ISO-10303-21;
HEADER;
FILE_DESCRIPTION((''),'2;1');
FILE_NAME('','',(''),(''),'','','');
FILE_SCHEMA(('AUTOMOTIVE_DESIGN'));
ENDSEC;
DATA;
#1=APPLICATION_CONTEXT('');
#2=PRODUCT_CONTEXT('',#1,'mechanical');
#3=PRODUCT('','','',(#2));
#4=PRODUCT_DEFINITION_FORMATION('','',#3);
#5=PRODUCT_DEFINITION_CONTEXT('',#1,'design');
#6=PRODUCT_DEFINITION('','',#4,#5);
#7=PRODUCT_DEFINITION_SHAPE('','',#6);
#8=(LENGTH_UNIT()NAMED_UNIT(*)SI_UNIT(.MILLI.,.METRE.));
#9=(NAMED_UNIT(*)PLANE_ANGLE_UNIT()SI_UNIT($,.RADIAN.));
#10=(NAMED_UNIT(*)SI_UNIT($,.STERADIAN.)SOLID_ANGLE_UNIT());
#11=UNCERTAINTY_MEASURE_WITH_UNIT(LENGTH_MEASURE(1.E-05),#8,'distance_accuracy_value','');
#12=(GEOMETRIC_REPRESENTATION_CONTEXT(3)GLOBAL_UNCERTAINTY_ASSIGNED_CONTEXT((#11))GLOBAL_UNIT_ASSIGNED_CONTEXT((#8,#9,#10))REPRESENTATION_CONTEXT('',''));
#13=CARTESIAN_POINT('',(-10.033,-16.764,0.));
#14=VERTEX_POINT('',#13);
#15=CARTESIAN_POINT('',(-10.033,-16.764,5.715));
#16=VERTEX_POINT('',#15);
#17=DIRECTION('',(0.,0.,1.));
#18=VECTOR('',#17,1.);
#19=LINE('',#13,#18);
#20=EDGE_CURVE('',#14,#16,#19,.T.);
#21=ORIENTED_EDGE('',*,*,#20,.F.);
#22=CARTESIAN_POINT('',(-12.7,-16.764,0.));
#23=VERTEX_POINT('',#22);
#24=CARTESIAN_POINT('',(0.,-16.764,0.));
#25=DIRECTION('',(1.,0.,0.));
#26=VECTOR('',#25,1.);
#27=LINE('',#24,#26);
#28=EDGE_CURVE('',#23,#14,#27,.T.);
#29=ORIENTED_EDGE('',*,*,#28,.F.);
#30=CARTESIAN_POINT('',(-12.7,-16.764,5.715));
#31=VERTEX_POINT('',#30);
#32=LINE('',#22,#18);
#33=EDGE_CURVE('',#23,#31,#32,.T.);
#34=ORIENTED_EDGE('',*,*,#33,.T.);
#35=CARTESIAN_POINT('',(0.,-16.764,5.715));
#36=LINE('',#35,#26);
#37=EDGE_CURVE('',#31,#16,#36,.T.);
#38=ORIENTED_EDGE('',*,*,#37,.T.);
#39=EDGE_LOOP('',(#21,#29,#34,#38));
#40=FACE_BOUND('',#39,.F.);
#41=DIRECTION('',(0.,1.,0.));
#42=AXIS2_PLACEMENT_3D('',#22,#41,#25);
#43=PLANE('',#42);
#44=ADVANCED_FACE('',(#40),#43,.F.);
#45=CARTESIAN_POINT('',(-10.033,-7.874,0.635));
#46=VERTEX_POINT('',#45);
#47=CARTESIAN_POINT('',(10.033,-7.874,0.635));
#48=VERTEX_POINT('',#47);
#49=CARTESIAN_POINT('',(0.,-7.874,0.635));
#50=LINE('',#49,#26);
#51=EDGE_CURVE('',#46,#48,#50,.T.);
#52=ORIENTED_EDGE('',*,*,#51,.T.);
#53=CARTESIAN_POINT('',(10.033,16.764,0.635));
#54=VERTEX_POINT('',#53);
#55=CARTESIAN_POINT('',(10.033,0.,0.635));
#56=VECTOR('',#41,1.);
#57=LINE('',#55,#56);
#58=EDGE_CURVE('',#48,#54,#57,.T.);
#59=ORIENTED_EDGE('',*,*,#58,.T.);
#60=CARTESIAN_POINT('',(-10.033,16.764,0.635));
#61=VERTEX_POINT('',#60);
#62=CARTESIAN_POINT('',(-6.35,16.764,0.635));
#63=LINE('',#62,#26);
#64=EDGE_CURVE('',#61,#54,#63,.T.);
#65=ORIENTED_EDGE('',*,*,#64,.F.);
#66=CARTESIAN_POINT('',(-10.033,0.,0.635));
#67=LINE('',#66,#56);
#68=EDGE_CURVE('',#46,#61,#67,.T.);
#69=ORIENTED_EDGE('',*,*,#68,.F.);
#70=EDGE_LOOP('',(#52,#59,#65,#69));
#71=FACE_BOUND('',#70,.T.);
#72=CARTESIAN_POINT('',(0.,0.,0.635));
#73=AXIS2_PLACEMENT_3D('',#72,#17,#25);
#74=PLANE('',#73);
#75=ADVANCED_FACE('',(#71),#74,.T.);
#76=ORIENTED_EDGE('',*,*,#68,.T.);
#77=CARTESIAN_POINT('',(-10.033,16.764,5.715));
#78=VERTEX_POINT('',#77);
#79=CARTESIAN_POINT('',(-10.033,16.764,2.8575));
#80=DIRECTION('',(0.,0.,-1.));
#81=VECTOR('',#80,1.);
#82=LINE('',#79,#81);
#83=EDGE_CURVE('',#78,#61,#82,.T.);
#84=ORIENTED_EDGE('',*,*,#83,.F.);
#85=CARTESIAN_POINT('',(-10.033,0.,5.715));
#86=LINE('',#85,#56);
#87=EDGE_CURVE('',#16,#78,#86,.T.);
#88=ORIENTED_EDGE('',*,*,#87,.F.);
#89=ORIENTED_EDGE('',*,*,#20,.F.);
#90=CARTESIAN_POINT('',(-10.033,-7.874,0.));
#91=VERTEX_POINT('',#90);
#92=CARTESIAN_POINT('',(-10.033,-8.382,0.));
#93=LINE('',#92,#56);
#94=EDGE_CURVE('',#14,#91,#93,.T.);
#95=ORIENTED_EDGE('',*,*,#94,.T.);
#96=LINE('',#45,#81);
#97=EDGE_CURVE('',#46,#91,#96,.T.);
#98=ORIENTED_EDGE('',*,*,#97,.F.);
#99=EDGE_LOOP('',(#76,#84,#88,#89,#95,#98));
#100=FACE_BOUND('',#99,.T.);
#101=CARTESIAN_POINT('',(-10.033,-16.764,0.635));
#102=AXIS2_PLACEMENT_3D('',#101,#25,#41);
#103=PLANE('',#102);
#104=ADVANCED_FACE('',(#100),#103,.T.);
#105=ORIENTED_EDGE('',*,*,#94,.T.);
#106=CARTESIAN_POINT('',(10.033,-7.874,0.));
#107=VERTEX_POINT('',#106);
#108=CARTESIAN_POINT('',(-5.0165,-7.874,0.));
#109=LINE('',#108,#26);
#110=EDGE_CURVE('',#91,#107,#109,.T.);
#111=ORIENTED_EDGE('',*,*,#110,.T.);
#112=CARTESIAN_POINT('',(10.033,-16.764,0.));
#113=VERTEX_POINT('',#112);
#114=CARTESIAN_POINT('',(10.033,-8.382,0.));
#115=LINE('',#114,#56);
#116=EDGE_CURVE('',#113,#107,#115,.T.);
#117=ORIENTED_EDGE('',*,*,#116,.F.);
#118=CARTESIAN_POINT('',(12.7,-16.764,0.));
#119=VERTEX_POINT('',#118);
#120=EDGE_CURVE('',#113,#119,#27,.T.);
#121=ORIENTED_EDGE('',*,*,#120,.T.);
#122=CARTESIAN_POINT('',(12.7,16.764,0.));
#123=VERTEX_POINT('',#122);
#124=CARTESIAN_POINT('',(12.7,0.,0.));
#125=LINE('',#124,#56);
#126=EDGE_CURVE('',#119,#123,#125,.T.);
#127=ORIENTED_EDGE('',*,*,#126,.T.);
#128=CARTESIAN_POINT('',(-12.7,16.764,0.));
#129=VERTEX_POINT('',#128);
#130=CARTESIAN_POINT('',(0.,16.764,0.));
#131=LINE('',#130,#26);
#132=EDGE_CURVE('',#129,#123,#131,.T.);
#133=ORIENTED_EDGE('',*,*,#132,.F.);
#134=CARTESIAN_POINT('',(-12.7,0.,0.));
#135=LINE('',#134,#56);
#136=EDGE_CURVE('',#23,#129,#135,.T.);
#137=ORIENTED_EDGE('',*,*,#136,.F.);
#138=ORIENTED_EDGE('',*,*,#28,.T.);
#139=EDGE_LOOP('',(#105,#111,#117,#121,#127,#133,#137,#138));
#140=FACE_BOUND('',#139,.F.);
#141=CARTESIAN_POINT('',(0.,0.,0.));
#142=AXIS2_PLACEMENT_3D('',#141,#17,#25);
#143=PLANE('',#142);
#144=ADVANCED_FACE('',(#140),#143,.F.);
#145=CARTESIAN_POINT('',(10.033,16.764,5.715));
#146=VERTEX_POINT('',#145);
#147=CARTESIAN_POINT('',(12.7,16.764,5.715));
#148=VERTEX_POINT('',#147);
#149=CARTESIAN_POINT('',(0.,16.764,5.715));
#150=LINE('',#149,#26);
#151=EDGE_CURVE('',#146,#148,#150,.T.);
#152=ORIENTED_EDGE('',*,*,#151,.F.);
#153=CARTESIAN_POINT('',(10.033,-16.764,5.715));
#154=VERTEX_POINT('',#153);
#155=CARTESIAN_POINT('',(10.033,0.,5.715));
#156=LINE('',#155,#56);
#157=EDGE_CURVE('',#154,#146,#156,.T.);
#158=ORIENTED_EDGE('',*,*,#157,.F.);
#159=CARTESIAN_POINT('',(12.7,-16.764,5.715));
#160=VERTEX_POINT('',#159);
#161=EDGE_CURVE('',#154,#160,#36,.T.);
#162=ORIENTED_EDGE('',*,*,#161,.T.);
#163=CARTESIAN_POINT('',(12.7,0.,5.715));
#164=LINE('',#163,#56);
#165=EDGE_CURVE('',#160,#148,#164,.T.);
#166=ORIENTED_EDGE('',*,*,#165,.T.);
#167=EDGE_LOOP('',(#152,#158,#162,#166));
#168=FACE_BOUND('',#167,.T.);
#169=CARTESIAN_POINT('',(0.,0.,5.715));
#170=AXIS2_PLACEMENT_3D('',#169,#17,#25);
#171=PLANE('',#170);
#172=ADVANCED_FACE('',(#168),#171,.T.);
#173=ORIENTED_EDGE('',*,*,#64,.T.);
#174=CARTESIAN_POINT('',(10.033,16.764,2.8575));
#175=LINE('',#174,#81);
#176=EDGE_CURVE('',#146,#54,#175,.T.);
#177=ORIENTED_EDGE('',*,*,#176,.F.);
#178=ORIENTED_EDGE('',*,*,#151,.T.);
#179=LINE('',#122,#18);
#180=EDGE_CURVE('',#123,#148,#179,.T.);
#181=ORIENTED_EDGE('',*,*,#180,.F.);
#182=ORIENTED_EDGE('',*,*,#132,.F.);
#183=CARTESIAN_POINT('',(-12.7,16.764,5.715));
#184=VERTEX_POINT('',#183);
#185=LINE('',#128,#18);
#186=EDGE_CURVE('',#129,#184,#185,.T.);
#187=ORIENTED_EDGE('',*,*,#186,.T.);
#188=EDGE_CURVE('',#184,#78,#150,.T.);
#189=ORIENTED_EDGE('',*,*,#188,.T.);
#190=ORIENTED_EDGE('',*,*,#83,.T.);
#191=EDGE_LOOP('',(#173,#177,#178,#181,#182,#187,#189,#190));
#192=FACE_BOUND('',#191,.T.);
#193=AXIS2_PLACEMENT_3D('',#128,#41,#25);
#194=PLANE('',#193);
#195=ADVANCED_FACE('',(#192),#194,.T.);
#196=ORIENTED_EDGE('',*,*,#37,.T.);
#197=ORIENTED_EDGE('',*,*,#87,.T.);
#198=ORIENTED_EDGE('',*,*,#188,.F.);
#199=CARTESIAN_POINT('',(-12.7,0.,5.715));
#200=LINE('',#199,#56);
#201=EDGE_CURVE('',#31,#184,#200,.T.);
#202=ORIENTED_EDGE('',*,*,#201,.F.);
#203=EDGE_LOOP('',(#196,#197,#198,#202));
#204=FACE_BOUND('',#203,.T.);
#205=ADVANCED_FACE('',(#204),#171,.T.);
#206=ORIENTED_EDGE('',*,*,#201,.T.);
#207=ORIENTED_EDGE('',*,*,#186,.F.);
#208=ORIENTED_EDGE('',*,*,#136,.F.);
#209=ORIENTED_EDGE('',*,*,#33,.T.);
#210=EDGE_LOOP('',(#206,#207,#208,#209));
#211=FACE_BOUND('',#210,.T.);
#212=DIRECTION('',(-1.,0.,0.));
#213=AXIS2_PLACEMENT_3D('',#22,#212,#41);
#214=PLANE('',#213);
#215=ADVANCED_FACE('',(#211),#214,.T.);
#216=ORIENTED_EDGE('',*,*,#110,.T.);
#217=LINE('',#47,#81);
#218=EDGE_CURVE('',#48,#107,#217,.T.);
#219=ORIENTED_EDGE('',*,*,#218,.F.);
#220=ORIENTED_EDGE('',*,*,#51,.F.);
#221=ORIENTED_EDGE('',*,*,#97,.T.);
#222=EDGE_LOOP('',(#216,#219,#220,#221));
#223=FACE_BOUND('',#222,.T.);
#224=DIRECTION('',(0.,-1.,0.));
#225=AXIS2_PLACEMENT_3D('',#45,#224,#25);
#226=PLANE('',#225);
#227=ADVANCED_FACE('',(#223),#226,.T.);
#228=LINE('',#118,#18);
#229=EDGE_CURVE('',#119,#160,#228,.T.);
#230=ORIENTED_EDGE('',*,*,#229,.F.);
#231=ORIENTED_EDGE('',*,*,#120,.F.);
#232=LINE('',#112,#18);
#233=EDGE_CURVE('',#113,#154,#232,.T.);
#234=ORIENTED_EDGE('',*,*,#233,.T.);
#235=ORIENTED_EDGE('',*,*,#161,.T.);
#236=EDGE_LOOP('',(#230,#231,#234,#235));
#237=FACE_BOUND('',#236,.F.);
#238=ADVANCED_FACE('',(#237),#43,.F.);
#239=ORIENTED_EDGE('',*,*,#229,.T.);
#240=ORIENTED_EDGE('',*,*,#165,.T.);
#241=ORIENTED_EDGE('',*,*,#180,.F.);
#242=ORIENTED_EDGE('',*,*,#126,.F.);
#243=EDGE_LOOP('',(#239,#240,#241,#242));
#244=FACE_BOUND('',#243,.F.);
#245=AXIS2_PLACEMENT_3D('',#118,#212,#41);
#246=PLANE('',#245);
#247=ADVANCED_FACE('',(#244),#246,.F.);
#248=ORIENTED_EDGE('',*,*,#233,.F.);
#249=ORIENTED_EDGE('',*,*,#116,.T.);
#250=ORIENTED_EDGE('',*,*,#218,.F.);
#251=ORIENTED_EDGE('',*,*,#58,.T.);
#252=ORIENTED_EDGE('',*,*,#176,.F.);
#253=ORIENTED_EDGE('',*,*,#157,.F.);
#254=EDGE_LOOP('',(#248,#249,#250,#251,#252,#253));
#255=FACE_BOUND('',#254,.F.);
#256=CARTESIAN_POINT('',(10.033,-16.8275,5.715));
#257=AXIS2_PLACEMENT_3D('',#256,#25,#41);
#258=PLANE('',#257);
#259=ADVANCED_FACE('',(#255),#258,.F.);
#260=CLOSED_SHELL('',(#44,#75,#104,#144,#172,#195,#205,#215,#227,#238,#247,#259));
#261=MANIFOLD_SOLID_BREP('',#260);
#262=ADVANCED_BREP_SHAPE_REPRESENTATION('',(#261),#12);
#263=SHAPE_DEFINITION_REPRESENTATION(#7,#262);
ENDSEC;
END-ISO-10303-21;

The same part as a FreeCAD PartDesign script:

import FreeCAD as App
import Part
import Sketcher
Q = App.Units.Quantity

doc = App.newDocument("Part")
body = doc.addObject("PartDesign::Body", "Body")

# Sketch on XY plane
sketch1 = body.newObject("Sketcher::SketchObject", "Sketch")
sketch1.AttachmentSupport = (doc.getObject("XY_Plane"), [""])
sketch1.MapMode = "FlatFace"
sketch1.addGeometry(Part.LineSegment(App.Vector(-13, 17, 0), App.Vector(-13, -17, 0)), False)
sketch1.addGeometry(Part.LineSegment(App.Vector(-13, -17, 0), App.Vector(13, -17, 0)), False)
sketch1.addGeometry(Part.LineSegment(App.Vector(13, -17, 0), App.Vector(13, 17, 0)), False)
sketch1.addGeometry(Part.LineSegment(App.Vector(13, 17, 0), App.Vector(-13, 17, 0)), False)
sketch1.addConstraint(Sketcher.Constraint("Coincident", 0, 2, 1, 1))
sketch1.addConstraint(Sketcher.Constraint("Coincident", 1, 2, 2, 1))
sketch1.addConstraint(Sketcher.Constraint("Coincident", 2, 2, 3, 1))
sketch1.addConstraint(Sketcher.Constraint("Coincident", 3, 2, 0, 1))
sketch1.addConstraint(Sketcher.Constraint("Vertical", 0))
sketch1.addConstraint(Sketcher.Constraint("Horizontal", 1))
sketch1.addConstraint(Sketcher.Constraint("Vertical", 2))
sketch1.addConstraint(Sketcher.Constraint("Horizontal", 3))
sketch1.addConstraint(Sketcher.Constraint("Symmetric", 0, 2, 2, 2, -1, 1))
sketch1.addConstraint(Sketcher.Constraint("DistanceX", 1, 1, 1, 2, Q("1 in")))
sketch1.addConstraint(Sketcher.Constraint("DistanceY", 0, 2, 0, 1, Q("1.32 in")))
pad1 = body.newObject("PartDesign::Pad", "Pad")
pad1.Profile = sketch1
pad1.Length = Q("0.225 in")

# Sketch on XY plane
sketch2 = body.newObject("Sketcher::SketchObject", "Sketch001")
sketch2.AttachmentSupport = (doc.getObject("XY_Plane"), [""])
sketch2.MapMode = "FlatFace"
sketch2.AttachmentOffset = App.Placement(App.Vector(0, 0, 0.225 * 25.4), App.Rotation())
sketch2.addGeometry(Part.LineSegment(App.Vector(-10, 17, 0), App.Vector(-10, -17, 0)), False)
sketch2.addGeometry(Part.LineSegment(App.Vector(-10, -17, 0), App.Vector(10, -17, 0)), False)
sketch2.addGeometry(Part.LineSegment(App.Vector(10, -17, 0), App.Vector(10, 17, 0)), False)
sketch2.addGeometry(Part.LineSegment(App.Vector(10, 17, 0), App.Vector(-10, 17, 0)), False)
sketch2.addConstraint(Sketcher.Constraint("Coincident", 0, 2, 1, 1))
sketch2.addConstraint(Sketcher.Constraint("Coincident", 1, 2, 2, 1))
sketch2.addConstraint(Sketcher.Constraint("Coincident", 2, 2, 3, 1))
sketch2.addConstraint(Sketcher.Constraint("Coincident", 3, 2, 0, 1))
sketch2.addConstraint(Sketcher.Constraint("Vertical", 0))
sketch2.addConstraint(Sketcher.Constraint("Horizontal", 1))
sketch2.addConstraint(Sketcher.Constraint("Vertical", 2))
sketch2.addConstraint(Sketcher.Constraint("Horizontal", 3))
sketch2.addConstraint(Sketcher.Constraint("Symmetric", 0, 2, 2, 2, -1, 1))
sketch2.addConstraint(Sketcher.Constraint("DistanceX", 1, 1, 1, 2, Q("0.79 in")))
sketch2.addConstraint(Sketcher.Constraint("DistanceY", 0, 2, 0, 1, Q("1.325 in")))
pocket1 = body.newObject("PartDesign::Pocket", "Pocket")
pocket1.Profile = sketch2
pocket1.Length = Q("0.2 in")

# Sketch on XY plane
sketch3 = body.newObject("Sketcher::SketchObject", "Sketch002")
sketch3.AttachmentSupport = (doc.getObject("XY_Plane"), [""])
sketch3.MapMode = "FlatFace"
sketch3.AttachmentOffset = App.Placement(App.Vector(0, 0, 0.025 * 25.4), App.Rotation())
sketch3.addGeometry(Part.LineSegment(App.Vector(-10, -8, 0), App.Vector(-10, -17, 0)), False)
sketch3.addGeometry(Part.LineSegment(App.Vector(-10, -17, 0), App.Vector(10, -17, 0)), False)
sketch3.addGeometry(Part.LineSegment(App.Vector(10, -17, 0), App.Vector(10, -8, 0)), False)
sketch3.addGeometry(Part.LineSegment(App.Vector(10, -8, 0), App.Vector(-10, -8, 0)), False)
sketch3.addConstraint(Sketcher.Constraint("Coincident", 0, 2, 1, 1))
sketch3.addConstraint(Sketcher.Constraint("Coincident", 1, 2, 2, 1))
sketch3.addConstraint(Sketcher.Constraint("Coincident", 2, 2, 3, 1))
sketch3.addConstraint(Sketcher.Constraint("Coincident", 3, 2, 0, 1))
sketch3.addConstraint(Sketcher.Constraint("Vertical", 0))
sketch3.addConstraint(Sketcher.Constraint("Horizontal", 1))
sketch3.addConstraint(Sketcher.Constraint("Vertical", 2))
sketch3.addConstraint(Sketcher.Constraint("Horizontal", 3))
sketch3.addConstraint(Sketcher.Constraint("DistanceX", 1, 1, 1, 2, Q("0.79 in")))
sketch3.addConstraint(Sketcher.Constraint("DistanceY", 0, 2, 0, 1, Q("0.35 in")))
sketch3.addConstraint(Sketcher.Constraint("DistanceY", 0, 2, -1, 1, Q("0.66 in")))
sketch3.addConstraint(Sketcher.Constraint("DistanceX", 0, 2, -1, 1, Q("0.395 in")))
pocket2 = body.newObject("PartDesign::Pocket", "Pocket001")
pocket2.Profile = sketch3
pocket2.Length = Q("1 in")

doc.recompute()
